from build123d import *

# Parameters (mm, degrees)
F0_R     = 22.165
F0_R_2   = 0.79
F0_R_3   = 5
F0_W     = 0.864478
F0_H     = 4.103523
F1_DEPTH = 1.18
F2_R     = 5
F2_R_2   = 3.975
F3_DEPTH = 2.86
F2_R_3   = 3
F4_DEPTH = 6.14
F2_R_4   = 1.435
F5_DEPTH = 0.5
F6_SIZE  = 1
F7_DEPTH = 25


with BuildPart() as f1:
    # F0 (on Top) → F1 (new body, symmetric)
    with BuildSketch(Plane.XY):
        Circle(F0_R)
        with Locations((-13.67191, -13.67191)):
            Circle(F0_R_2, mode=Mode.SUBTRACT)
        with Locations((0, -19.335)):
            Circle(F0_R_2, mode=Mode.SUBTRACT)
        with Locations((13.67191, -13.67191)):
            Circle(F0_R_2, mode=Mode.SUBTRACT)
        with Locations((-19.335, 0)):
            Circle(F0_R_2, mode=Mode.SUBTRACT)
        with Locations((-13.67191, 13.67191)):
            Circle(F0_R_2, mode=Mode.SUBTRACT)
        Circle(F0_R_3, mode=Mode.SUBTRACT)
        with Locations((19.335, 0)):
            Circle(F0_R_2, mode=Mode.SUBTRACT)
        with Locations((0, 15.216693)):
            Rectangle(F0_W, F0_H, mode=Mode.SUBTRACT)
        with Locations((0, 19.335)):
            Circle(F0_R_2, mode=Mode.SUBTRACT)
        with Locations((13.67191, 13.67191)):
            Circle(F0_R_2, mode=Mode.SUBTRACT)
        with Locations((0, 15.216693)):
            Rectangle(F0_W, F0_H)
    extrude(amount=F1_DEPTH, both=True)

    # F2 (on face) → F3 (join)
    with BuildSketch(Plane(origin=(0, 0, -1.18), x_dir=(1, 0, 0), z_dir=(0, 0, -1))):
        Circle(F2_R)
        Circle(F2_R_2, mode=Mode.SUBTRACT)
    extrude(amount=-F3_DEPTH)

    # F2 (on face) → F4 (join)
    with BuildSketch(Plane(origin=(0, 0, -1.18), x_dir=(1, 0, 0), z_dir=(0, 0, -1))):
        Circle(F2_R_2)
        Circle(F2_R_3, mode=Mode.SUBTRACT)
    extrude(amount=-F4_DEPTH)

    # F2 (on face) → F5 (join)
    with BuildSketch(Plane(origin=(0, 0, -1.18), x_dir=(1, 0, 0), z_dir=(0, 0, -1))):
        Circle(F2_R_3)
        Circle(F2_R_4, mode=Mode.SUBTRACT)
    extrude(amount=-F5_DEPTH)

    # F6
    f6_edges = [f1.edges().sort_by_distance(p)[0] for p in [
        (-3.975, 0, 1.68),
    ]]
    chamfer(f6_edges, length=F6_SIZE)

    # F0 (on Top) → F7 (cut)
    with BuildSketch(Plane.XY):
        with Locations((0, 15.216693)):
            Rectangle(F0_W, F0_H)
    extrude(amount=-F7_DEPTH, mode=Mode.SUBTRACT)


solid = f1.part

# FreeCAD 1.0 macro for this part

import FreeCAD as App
import Part
import Sketcher
from FreeCAD import Vector


def edges_at(feature, points):
    """Names of the edges that pass closest to the given points."""
    edges = feature.Shape.Edges
    near = lambda p: min(range(len(edges)), key=lambda i: edges[i].distToShape(Part.Vertex(*p))[0])
    return sorted({f"Edge{near(p) + 1}" for p in points})


def add_polygon(sketch, points):
    """Adds a closed chain of lines whose ends are joined by coincident constraints."""
    first, n = sketch.GeometryCount, len(points)
    for a, b in zip(points, points[1:] + points[:1]):
        sketch.addGeometry(Part.LineSegment(App.Vector(*a, 0), App.Vector(*b, 0)), False)
    for i in range(n):
        sketch.addConstraint(Sketcher.Constraint("Coincident", first + i, 2, first + (i + 1) % n, 1))

doc = App.newDocument("Part")
body = doc.addObject("PartDesign::Body", "Body")

# Sketch on XY plane
sketch1 = doc.addObject("Sketcher::SketchObject", "Sketch")
body.addObject(sketch1)
sketch1.AttachmentSupport = (doc.XY_Plane, [""])
sketch1.MapMode = "FlatFace"
sketch1.addGeometry([
    Part.Circle(Vector(0, 0, 0), Vector(0, 0, 1), 22.2),  # 0
    Part.Circle(Vector(-13.7, -13.7, 0), Vector(0, 0, 1), 0.8),  # 1
    Part.Circle(Vector(0, -19.3, 0), Vector(0, 0, 1), 0.8),  # 2
    Part.Circle(Vector(-19.3, 0, 0), Vector(0, 0, 1), 0.8),  # 3
    Part.Circle(Vector(0, 0, 0), Vector(0, 0, 1), 5),  # 4
    Part.Circle(Vector(13.7, -13.7, 0), Vector(0, 0, 1), 0.8),  # 5
    Part.Circle(Vector(19.3, 0, 0), Vector(0, 0, 1), 0.8),  # 6
    Part.Circle(Vector(-13.7, 13.7, 0), Vector(0, 0, 1), 0.8),  # 7
    Part.Circle(Vector(0, 19.3, 0), Vector(0, 0, 1), 0.8),  # 8
    Part.Circle(Vector(13.7, 13.7, 0), Vector(0, 0, 1), 0.8),  # 9
], False)
sketch1.addConstraint([
    Sketcher.Constraint("Coincident", 0, 3, -1, 1),
    Sketcher.Constraint("Coincident", 4, 3, -1, 1),
    Sketcher.Constraint("Equal", 1, 2),
    Sketcher.Constraint("Equal", 2, 3),
    Sketcher.Constraint("Equal", 3, 5),
    Sketcher.Constraint("Equal", 5, 6),
    Sketcher.Constraint("Equal", 6, 7),
    Sketcher.Constraint("Equal", 7, 8),
    Sketcher.Constraint("Equal", 8, 9),
    Sketcher.Constraint("Symmetric", 3, 3, 6, 3, -1, 1),
    Sketcher.Constraint("Symmetric", 5, 3, 7, 3, -1, 1),
    Sketcher.Constraint("Symmetric", 2, 3, 8, 3, -1, 1),
    Sketcher.Constraint("Symmetric", 1, 3, 9, 3, -1, 1),
    Sketcher.Constraint("Symmetric", 1, 3, 5, 3, -2),
    Sketcher.Constraint("PointOnObject", 2, 3, -2),
    Sketcher.Constraint("PointOnObject", 3, 3, -1),
    Sketcher.Constraint("Diameter", 4, 10.0),
    Sketcher.Constraint("Diameter", 0, 44.33),
    Sketcher.Constraint("Diameter", 1, 1.58),
    Sketcher.Constraint("DistanceY", 2, 3, -1, 1, 19.335),
    Sketcher.Constraint("DistanceX", 3, 3, -1, 1, 19.335),
    Sketcher.Constraint("DistanceX", 1, 3, -1, 1, 13.67191),
    Sketcher.Constraint("DistanceY", 1, 3, -1, 1, 13.67191),
])
pad1 = doc.addObject("PartDesign::Pad", "Pad")
body.addObject(pad1)
pad1.Profile = sketch1
pad1.Length = 2.36
pad1.Midplane = True

# Sketch on XY plane
sketch2 = doc.addObject("Sketcher::SketchObject", "Sketch001")
body.addObject(sketch2)
sketch2.AttachmentSupport = (doc.XY_Plane, [""])
sketch2.MapMode = "FlatFace"
sketch2.AttachmentOffset = App.Placement(Vector(0, 0, -1.18), App.Rotation())
sketch2.addGeometry([
    Part.Circle(Vector(0, 0, 0), Vector(0, 0, 1), 5),
    Part.Circle(Vector(0, 0, 0), Vector(0, 0, 1), 4),
], False)
sketch2.addConstraint([
    Sketcher.Constraint("Coincident", 0, 3, -1, 1),
    Sketcher.Constraint("Coincident", 1, 3, -1, 1),
    Sketcher.Constraint("Diameter", 0, 10.0),
    Sketcher.Constraint("Diameter", 1, 7.95),
])
pad2 = doc.addObject("PartDesign::Pad", "Pad001")
body.addObject(pad2)
pad2.Profile = sketch2
pad2.Length = 2.86

# Sketch on XY plane
sketch3 = doc.addObject("Sketcher::SketchObject", "Sketch002")
body.addObject(sketch3)
sketch3.AttachmentSupport = (doc.XY_Plane, [""])
sketch3.MapMode = "FlatFace"
sketch3.AttachmentOffset = App.Placement(Vector(0, 0, -1.18), App.Rotation())
sketch3.addGeometry([
    Part.Circle(Vector(0, 0, 0), Vector(0, 0, 1), 4),
    Part.Circle(Vector(0, 0, 0), Vector(0, 0, 1), 3),
], False)
sketch3.addConstraint([
    Sketcher.Constraint("Coincident", 0, 3, -1, 1),
    Sketcher.Constraint("Coincident", 1, 3, -1, 1),
    Sketcher.Constraint("Diameter", 1, 6.0),
    Sketcher.Constraint("Diameter", 0, 7.95),
])
pad3 = doc.addObject("PartDesign::Pad", "Pad002")
body.addObject(pad3)
pad3.Profile = sketch3
pad3.Length = 6.14

# Sketch on XY plane
sketch4 = doc.addObject("Sketcher::SketchObject", "Sketch003")
body.addObject(sketch4)
sketch4.AttachmentSupport = (doc.XY_Plane, [""])
sketch4.MapMode = "FlatFace"
sketch4.AttachmentOffset = App.Placement(Vector(0, 0, -1.18), App.Rotation())
sketch4.addGeometry([
    Part.Circle(Vector(0, 0, 0), Vector(0, 0, 1), 3),
    Part.Circle(Vector(0, 0, 0), Vector(0, 0, 1), 1.4),
], False)
sketch4.addConstraint([
    Sketcher.Constraint("Coincident", 0, 3, -1, 1),
    Sketcher.Constraint("Coincident", 1, 3, -1, 1),
    Sketcher.Constraint("Diameter", 0, 6.0),
    Sketcher.Constraint("Diameter", 1, 2.87),
])
pad4 = doc.addObject("PartDesign::Pad", "Pad003")
body.addObject(pad4)
pad4.Profile = sketch4
pad4.Length = 0.5
doc.recompute()

chamfer = doc.addObject("PartDesign::Chamfer", "Chamfer")
body.addObject(chamfer)
chamfer.Base = (pad4, edges_at(pad4, [(-3.975, 0, 1.68)]))
chamfer.Size = 1

# Sketch on XY plane
sketch5 = doc.addObject("Sketcher::SketchObject", "Sketch004")
body.addObject(sketch5)
sketch5.AttachmentSupport = (doc.XY_Plane, [""])
sketch5.MapMode = "FlatFace"
add_polygon(sketch5, [(-0.4, 17.3), (-0.4, 13.2), (0.4, 13.2), (0.4, 17.3)])  # lines 0-3
sketch5.addConstraint([
    Sketcher.Constraint("Vertical", 0),
    Sketcher.Constraint("Horizontal", 1),
    Sketcher.Constraint("Vertical", 2),
    Sketcher.Constraint("Horizontal", 3),
    Sketcher.Constraint("DistanceX", 1, 1, 1, 2, 0.864478),
    Sketcher.Constraint("DistanceY", 0, 2, 0, 1, 4.103523),
    Sketcher.Constraint("DistanceX", 0, 2, -1, 1, 0.432239),
    Sketcher.Constraint("DistanceY", -1, 1, 0, 2, 13.164931),
])
pocket1 = doc.addObject("PartDesign::Pocket", "Pocket")
body.addObject(pocket1)
pocket1.Profile = sketch5
pocket1.Length = 25

doc.recompute()
